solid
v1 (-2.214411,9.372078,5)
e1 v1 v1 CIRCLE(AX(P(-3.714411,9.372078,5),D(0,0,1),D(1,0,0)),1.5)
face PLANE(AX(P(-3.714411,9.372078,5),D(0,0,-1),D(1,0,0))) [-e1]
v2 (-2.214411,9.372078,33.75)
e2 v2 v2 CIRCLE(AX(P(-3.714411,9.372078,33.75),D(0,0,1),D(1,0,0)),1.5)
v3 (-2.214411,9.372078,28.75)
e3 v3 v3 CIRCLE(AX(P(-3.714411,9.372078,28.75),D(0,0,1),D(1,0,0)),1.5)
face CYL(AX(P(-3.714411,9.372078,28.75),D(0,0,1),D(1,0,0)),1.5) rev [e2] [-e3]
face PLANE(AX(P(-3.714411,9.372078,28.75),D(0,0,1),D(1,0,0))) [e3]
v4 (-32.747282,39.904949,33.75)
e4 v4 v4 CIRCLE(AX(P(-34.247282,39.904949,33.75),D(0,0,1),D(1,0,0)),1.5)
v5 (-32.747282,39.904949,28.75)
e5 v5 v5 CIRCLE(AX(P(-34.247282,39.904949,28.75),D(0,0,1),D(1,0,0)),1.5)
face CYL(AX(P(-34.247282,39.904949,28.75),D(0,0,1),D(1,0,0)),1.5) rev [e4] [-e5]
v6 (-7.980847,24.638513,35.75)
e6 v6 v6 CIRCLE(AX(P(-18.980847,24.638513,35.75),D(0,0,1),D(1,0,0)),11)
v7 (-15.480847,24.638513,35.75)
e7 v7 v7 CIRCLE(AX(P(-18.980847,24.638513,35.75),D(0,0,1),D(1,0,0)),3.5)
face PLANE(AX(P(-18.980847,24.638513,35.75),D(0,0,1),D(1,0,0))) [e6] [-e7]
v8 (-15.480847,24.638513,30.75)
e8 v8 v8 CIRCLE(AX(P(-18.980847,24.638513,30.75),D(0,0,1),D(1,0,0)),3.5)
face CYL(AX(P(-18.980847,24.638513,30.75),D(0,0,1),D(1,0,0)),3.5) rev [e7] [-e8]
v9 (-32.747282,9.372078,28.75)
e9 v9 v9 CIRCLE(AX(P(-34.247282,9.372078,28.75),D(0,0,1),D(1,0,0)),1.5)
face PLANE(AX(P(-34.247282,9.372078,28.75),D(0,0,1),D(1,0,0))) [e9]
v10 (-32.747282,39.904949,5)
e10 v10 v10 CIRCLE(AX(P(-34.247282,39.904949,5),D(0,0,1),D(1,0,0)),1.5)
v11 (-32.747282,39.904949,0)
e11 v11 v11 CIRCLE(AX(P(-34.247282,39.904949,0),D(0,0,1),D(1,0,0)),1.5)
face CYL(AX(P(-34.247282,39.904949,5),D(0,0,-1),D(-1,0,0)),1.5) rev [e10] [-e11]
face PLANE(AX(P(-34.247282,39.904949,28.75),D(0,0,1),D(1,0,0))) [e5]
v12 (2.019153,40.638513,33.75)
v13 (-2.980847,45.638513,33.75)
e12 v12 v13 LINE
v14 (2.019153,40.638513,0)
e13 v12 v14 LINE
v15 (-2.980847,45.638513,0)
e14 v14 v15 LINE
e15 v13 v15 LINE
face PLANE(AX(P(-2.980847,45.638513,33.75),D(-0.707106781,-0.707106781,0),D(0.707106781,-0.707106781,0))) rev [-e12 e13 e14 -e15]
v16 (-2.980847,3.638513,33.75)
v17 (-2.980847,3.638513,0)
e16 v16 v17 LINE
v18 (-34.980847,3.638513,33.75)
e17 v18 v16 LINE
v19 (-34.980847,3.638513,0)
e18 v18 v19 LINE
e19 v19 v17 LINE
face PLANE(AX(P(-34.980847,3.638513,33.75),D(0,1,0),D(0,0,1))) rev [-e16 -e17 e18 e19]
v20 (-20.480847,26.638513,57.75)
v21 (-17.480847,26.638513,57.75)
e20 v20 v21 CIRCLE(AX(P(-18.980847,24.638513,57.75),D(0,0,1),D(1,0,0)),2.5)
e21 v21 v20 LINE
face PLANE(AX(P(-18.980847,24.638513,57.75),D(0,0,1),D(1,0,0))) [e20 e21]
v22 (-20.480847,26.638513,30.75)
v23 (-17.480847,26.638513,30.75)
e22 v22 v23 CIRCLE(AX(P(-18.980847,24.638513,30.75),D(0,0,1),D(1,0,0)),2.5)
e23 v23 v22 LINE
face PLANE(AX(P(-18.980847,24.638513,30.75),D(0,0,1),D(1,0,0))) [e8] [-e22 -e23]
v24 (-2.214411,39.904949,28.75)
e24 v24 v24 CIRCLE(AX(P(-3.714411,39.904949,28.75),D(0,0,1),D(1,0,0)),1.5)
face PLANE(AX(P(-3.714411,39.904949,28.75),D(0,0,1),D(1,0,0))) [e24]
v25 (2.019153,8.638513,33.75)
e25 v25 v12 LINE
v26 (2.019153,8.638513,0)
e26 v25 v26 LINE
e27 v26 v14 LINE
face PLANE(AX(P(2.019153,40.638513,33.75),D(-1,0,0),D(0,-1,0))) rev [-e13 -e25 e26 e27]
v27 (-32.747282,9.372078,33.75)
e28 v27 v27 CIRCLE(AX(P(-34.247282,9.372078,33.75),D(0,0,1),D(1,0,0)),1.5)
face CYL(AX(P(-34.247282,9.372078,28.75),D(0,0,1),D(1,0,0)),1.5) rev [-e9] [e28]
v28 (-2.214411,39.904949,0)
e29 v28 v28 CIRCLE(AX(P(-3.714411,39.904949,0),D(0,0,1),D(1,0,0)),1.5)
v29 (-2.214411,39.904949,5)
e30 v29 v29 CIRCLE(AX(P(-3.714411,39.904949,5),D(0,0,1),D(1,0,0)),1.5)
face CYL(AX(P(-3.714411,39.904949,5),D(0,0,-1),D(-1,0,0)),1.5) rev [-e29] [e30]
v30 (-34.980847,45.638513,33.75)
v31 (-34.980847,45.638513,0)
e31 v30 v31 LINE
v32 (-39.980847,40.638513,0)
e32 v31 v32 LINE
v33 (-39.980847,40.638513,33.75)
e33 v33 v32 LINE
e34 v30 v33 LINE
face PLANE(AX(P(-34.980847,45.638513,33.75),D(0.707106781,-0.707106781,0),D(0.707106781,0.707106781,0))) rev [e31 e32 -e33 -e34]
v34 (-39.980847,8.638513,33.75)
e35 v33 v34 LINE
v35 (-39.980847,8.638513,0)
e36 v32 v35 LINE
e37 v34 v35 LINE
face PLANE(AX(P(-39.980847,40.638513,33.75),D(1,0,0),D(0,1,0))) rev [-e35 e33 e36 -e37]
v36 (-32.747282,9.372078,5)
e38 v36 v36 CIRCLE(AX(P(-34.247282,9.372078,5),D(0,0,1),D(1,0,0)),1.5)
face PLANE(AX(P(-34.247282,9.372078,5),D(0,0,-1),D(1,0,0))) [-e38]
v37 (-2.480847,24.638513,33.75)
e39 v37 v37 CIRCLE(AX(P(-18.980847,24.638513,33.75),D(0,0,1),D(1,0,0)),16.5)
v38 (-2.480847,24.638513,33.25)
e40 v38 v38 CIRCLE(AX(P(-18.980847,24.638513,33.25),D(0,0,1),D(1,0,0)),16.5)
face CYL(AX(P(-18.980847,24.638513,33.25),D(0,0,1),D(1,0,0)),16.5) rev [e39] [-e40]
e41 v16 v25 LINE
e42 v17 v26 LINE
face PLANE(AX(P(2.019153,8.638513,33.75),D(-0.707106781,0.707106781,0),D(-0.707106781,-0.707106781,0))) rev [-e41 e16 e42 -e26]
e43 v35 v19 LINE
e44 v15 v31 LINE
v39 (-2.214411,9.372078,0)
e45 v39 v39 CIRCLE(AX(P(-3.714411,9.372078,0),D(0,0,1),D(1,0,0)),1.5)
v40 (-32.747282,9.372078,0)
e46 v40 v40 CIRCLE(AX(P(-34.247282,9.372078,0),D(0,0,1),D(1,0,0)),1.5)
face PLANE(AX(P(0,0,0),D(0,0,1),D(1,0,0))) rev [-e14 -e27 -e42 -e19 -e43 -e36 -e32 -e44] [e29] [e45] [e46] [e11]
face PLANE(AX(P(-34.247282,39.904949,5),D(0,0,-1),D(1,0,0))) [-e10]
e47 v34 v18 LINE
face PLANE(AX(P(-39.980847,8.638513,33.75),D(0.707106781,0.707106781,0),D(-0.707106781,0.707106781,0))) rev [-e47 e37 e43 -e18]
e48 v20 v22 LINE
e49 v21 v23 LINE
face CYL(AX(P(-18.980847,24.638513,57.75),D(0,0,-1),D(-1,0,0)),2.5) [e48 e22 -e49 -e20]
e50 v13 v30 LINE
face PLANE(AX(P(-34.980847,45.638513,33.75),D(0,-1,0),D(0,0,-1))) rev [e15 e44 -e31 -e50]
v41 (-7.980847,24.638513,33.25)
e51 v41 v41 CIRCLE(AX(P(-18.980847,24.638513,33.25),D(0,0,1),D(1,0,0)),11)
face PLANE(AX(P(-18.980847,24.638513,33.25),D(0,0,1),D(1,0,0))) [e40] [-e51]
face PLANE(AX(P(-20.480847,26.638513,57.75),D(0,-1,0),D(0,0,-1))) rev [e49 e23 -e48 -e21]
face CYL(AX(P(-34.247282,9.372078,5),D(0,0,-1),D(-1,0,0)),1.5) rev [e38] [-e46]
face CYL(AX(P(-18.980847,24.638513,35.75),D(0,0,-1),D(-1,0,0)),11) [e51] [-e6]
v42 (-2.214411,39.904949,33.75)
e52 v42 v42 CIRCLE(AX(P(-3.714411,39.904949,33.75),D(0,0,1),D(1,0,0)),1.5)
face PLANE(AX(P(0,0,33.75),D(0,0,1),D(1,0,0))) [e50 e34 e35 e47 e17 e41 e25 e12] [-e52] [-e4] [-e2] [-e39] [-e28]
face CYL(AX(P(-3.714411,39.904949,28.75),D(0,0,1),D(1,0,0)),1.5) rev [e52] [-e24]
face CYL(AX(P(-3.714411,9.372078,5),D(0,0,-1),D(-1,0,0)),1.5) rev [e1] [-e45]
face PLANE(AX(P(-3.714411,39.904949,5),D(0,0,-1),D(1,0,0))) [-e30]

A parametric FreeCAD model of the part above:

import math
import FreeCAD as App
import Part
import Sketcher
from FreeCAD import Vector

doc = App.newDocument("Part")
body = doc.addObject("PartDesign::Body", "Body")

# Sketch on XY plane
sketch1 = body.newObject("Sketcher::SketchObject", "Sketch")
sketch1.AttachmentSupport = (doc.getObject("XY_Plane"), [""])
sketch1.MapMode = "FlatFace"
sketch1.addGeometry(Part.LineSegment(Vector(-35, 46, 0), Vector(-40, 41, 0)), False)
sketch1.addGeometry(Part.LineSegment(Vector(-40, 41, 0), Vector(-40, 9, 0)), False)
sketch1.addGeometry(Part.LineSegment(Vector(-40, 9, 0), Vector(-35, 4, 0)), False)
sketch1.addGeometry(Part.LineSegment(Vector(-35, 4, 0), Vector(-3, 4, 0)), False)
sketch1.addGeometry(Part.LineSegment(Vector(-3, 4, 0), Vector(2, 9, 0)), False)
sketch1.addGeometry(Part.LineSegment(Vector(2, 9, 0), Vector(2, 41, 0)), False)
sketch1.addGeometry(Part.LineSegment(Vector(2, 41, 0), Vector(-3, 46, 0)), False)
sketch1.addGeometry(Part.LineSegment(Vector(-3, 46, 0), Vector(-35, 46, 0)), False)
sketch1.addConstraint(Sketcher.Constraint("Coincident", 0, 2, 1, 1))
sketch1.addConstraint(Sketcher.Constraint("Coincident", 1, 2, 2, 1))
sketch1.addConstraint(Sketcher.Constraint("Coincident", 2, 2, 3, 1))
sketch1.addConstraint(Sketcher.Constraint("Coincident", 3, 2, 4, 1))
sketch1.addConstraint(Sketcher.Constraint("Coincident", 4, 2, 5, 1))
sketch1.addConstraint(Sketcher.Constraint("Coincident", 5, 2, 6, 1))
sketch1.addConstraint(Sketcher.Constraint("Coincident", 6, 2, 7, 1))
sketch1.addConstraint(Sketcher.Constraint("Coincident", 7, 2, 0, 1))
sketch1.addConstraint(Sketcher.Constraint("Vertical", 1))
sketch1.addConstraint(Sketcher.Constraint("Horizontal", 3))
sketch1.addConstraint(Sketcher.Constraint("Vertical", 5))
sketch1.addConstraint(Sketcher.Constraint("Horizontal", 7))
sketch1.addConstraint(Sketcher.Constraint("Perpendicular", 0, 2))
sketch1.addConstraint(Sketcher.Constraint("Perpendicular", 2, 4))
sketch1.addConstraint(Sketcher.Constraint("Perpendicular", 4, 6))
sketch1.addConstraint(Sketcher.Constraint("Horizontal", 1, 2, 4, 2))
sketch1.addConstraint(Sketcher.Constraint("Horizontal", 0, 2, 5, 2))
sketch1.addConstraint(Sketcher.Constraint("Vertical", 3, 2, 6, 2))
sketch1.addConstraint(Sketcher.Constraint("Vertical", 2, 2, 7, 2))
sketch1.addConstraint(Sketcher.Constraint("Equal", 7, 1))
sketch1.addConstraint(Sketcher.Constraint("DistanceX", 3, 1, 3, 2, 32.0))
sketch1.addConstraint(Sketcher.Constraint("DistanceX", 1, 2, 2, 2, 5.0))
sketch1.addConstraint(Sketcher.Constraint("DistanceX", 0, 2, -1, 1, 39.980847))
sketch1.addConstraint(Sketcher.Constraint("DistanceY", -1, 1, 0, 2, 40.638513))
pad1 = body.newObject("PartDesign::Pad", "Pad")
pad1.Profile = sketch1
pad1.Length = 33.75

# Sketch on XY plane
sketch2 = body.newObject("Sketcher::SketchObject", "Sketch001")
sketch2.AttachmentSupport = (doc.getObject("XY_Plane"), [""])
sketch2.MapMode = "FlatFace"
sketch2.AttachmentOffset = App.Placement(Vector(0, 0, 33.75), App.Rotation())
sketch2.addGeometry(Part.Circle(Vector(-19, 25, 0), Vector(0, 0, 1), 16), False)
sketch2.addConstraint(Sketcher.Constraint("Diameter", 0, 33.0))
sketch2.addConstraint(Sketcher.Constraint("DistanceX", 0, 3, -1, 1, 18.980847))
sketch2.addConstraint(Sketcher.Constraint("DistanceY", -1, 1, 0, 3, 24.638513))
pocket1 = body.newObject("PartDesign::Pocket", "Pocket")
pocket1.Profile = sketch2
pocket1.Length = 0.5

# Sketch on XY plane
sketch3 = body.newObject("Sketcher::SketchObject", "Sketch002")
sketch3.AttachmentSupport = (doc.getObject("XY_Plane"), [""])
sketch3.MapMode = "FlatFace"
sketch3.AttachmentOffset = App.Placement(Vector(0, 0, 33.25), App.Rotation())
sketch3.addGeometry(Part.Circle(Vector(-19, 25, 0), Vector(0, 0, 1), 11), False)
sketch3.addConstraint(Sketcher.Constraint("Diameter", 0, 22.0))
sketch3.addConstraint(Sketcher.Constraint("DistanceX", 0, 3, -1, 1, 18.980847))
sketch3.addConstraint(Sketcher.Constraint("DistanceY", -1, 1, 0, 3, 24.638513))
pad2 = body.newObject("PartDesign::Pad", "Pad001")
pad2.Profile = sketch3
pad2.Length = 2.5

# Sketch on XY plane
sketch4 = body.newObject("Sketcher::SketchObject", "Sketch003")
sketch4.AttachmentSupport = (doc.getObject("XY_Plane"), [""])
sketch4.MapMode = "FlatFace"
sketch4.AttachmentOffset = App.Placement(Vector(0, 0, 35.75), App.Rotation())
sketch4.addGeometry(Part.Circle(Vector(-19, 24.6, 0), Vector(0, 0, 1), 3.5), False)
sketch4.addConstraint(Sketcher.Constraint("Diameter", 0, 7.0))
sketch4.addConstraint(Sketcher.Constraint("DistanceX", 0, 3, -1, 1, 18.980847))
sketch4.addConstraint(Sketcher.Constraint("DistanceY", -1, 1, 0, 3, 24.638513))
pocket2 = body.newObject("PartDesign::Pocket", "Pocket001")
pocket2.Profile = sketch4
pocket2.Length = 5

# Sketch on XY plane
sketch5 = body.newObject("Sketcher::SketchObject", "Sketch004")
sketch5.AttachmentSupport = (doc.getObject("XY_Plane"), [""])
sketch5.MapMode = "FlatFace"
sketch5.AttachmentOffset = App.Placement(Vector(0, 0, 30.75), App.Rotation())
sketch5.addGeometry(Part.LineSegment(Vector(-17.5, 26.6, 0), Vector(-20.5, 26.6, 0)), False)
sketch5.addGeometry(Part.ArcOfCircle(Part.Circle(Vector(-19, 24.6, 0), Vector(0, 0, 1), 2.5), math.radians(127), math.radians(413)), False)
sketch5.addConstraint(Sketcher.Constraint("Coincident", 0, 1, 1, 2))
sketch5.addConstraint(Sketcher.Constraint("Coincident", 1, 1, 0, 2))
sketch5.addConstraint(Sketcher.Constraint("Horizontal", 0))
sketch5.addConstraint(Sketcher.Constraint("Radius", 1, 2.5))
sketch5.addConstraint(Sketcher.Constraint("DistanceX", 0, 2, 0, 1, 3.0))
sketch5.addConstraint(Sketcher.Constraint("DistanceX", 1, 3, -1, 1, 18.980847))
sketch5.addConstraint(Sketcher.Constraint("DistanceY", -1, 1, 1, 3, 24.638513))
pad3 = body.newObject("PartDesign::Pad", "Pad002")
pad3.Profile = sketch5
pad3.Length = 27

# Sketch on XY plane
sketch6 = body.newObject("Sketcher::SketchObject", "Sketch005")
sketch6.AttachmentSupport = (doc.getObject("XY_Plane"), [""])
sketch6.MapMode = "FlatFace"
sketch6.AttachmentOffset = App.Placement(Vector(0, 0, 33.75), App.Rotation())
sketch6.addGeometry(Part.Circle(Vector(-34.2, 39.9, 0), Vector(0, 0, 1), 1.5), False)
sketch6.addGeometry(Part.Circle(Vector(-3.7, 39.9, 0), Vector(0, 0, 1), 1.5), False)
sketch6.addGeometry(Part.Circle(Vector(-3.7, 9.4, 0), Vector(0, 0, 1), 1.5), False)
sketch6.addGeometry(Part.Circle(Vector(-34.2, 9.4, 0), Vector(0, 0, 1), 1.5), False)
sketch6.addConstraint(Sketcher.Constraint("Equal", 0, 1))
sketch6.addConstraint(Sketcher.Constraint("Equal", 1, 2))
sketch6.addConstraint(Sketcher.Constraint("Equal", 2, 3))
sketch6.addConstraint(Sketcher.Constraint("Horizontal", 0, 3, 1, 3))
sketch6.addConstraint(Sketcher.Constraint("Horizontal", 2, 3, 3, 3))
sketch6.addConstraint(Sketcher.Constraint("Vertical", 1, 3, 2, 3))
sketch6.addConstraint(Sketcher.Constraint("Vertical", 0, 3, 3, 3))
sketch6.addConstraint(Sketcher.Constraint("Diameter", 0, 3.0))
sketch6.addConstraint(Sketcher.Constraint("DistanceX", 0, 3, -1, 1, 34.247282))
sketch6.addConstraint(Sketcher.Constraint("DistanceY", -1, 1, 0, 3, 39.904949))
sketch6.addConstraint(Sketcher.Constraint("DistanceX", 1, 3, -1, 1, 3.714411))
sketch6.addConstraint(Sketcher.Constraint("DistanceY", -1, 1, 2, 3, 9.372078))
pocket3 = body.newObject("PartDesign::Pocket", "Pocket002")
pocket3.Profile = sketch6
pocket3.Length = 5
doc.recompute()

datumplane = body.newObject("PartDesign::Plane", "DatumPlane")
datumplane.AttachmentSupport = (doc.getObject("XY_Plane"), [""])
datumplane.MapMode = "FlatFace"
datumplane.AttachmentOffset = App.Placement(Vector(0, 0, 16.875), App.Rotation())
mirrored = body.newObject("PartDesign::Mirrored", "Mirrored")
mirrored.Originals = [pocket3]
mirrored.MirrorPlane = (datumplane, [""])
body.Tip = mirrored

doc.recompute()
